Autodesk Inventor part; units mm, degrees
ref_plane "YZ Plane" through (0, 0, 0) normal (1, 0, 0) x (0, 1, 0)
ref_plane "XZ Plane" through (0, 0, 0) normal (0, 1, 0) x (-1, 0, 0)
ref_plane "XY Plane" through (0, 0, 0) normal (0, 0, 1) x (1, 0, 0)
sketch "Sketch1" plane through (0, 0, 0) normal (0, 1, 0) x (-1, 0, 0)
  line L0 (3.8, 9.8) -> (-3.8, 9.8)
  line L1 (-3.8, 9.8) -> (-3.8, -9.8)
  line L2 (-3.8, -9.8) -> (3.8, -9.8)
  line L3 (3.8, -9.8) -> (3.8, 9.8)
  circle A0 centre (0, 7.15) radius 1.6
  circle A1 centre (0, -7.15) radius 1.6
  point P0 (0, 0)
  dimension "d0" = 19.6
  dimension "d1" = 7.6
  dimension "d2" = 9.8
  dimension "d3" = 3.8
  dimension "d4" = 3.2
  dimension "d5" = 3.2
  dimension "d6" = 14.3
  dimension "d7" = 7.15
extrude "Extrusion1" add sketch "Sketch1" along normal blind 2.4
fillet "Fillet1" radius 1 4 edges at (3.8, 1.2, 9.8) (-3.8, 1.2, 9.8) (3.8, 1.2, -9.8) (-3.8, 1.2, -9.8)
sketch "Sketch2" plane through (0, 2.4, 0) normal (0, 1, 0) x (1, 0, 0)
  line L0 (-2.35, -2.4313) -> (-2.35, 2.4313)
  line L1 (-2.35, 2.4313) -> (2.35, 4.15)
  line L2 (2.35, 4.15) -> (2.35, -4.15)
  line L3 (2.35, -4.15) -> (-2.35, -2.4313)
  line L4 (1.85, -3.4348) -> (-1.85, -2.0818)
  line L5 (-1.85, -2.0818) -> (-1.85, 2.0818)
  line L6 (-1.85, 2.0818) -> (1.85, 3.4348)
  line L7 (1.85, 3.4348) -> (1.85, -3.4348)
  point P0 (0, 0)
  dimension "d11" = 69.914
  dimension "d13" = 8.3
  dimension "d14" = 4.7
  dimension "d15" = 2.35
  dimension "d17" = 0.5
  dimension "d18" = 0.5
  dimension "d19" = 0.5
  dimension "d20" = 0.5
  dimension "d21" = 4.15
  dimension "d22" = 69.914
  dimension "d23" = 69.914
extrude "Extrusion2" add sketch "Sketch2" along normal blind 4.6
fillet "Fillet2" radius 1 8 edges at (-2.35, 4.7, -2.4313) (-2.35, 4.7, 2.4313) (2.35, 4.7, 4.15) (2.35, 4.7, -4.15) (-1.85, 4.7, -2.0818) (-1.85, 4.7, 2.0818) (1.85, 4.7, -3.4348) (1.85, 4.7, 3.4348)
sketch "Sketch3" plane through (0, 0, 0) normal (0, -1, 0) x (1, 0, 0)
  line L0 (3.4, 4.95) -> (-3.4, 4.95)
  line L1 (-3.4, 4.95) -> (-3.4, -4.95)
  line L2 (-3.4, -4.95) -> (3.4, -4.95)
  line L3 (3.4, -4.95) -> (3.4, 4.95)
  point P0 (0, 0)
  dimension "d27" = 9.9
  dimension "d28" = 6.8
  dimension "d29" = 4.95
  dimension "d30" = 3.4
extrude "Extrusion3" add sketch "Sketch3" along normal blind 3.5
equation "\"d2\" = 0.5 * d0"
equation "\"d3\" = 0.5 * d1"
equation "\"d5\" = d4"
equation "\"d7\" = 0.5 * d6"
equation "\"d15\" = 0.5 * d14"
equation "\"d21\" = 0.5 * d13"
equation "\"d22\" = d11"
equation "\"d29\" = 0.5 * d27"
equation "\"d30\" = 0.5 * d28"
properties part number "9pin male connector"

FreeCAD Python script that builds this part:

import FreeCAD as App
import Part
import Sketcher

V = App.Vector
Q = App.Units.Quantity


def edges_at(feature, points):
    """Names of the edges that pass closest to the given points."""
    edges = feature.Shape.Edges
    near = lambda p: min(range(len(edges)), key=lambda i: edges[i].distToShape(Part.Vertex(*p))[0])
    return sorted({f"Edge{near(p) + 1}" for p in points})

doc = App.newDocument("Part")
params = doc.addObject("Spreadsheet::Sheet", "Params")
for row, (alias, value) in enumerate([
    ("sketch1_diameter", "3.2 mm"),
    ("sketch1_width", "7.6 mm"),
    ("sketch1_height", "19.6 mm"),
    ("pad1_length", "2.4 mm"),
    ("fillet_radius", "1 mm"),
    ("sketch2_height", "8.3 mm"),
    ("pad2_length", "4.6 mm"),
    ("fillet2_radius", "1 mm"),
    ("sketch3_width", "6.8 mm"),
    ("sketch3_height", "9.9 mm"),
    ("pad3_length", "3.5 mm"),
], start=1):
    params.set(f"A{row}", alias)
    params.set(f"B{row}", "=" + value)
    params.setAlias(f"B{row}", alias)

body = doc.addObject("PartDesign::Body", "Body")

# Sketch on XZ plane
sketch1 = doc.addObject("Sketcher::SketchObject", "Sketch")
body.addObject(sketch1)
sketch1.AttachmentSupport = (doc.XZ_Plane, [""])
sketch1.MapMode = "FlatFace"
sketch1.addGeometry([
    Part.LineSegment(V(-3.8, -9.8, 0), V(-3.8, 9.8, 0)),  # 0
    Part.LineSegment(V(-3.8, 9.8, 0), V(3.8, 9.8, 0)),  # 1
    Part.LineSegment(V(3.8, 9.8, 0), V(3.8, -9.8, 0)),  # 2
    Part.LineSegment(V(3.8, -9.8, 0), V(-3.8, -9.8, 0)),  # 3
    Part.Circle(V(0, -7.2, 0), V(0, 0, 1), 1.6),  # 4
    Part.Circle(V(0, 7.2, 0), V(0, 0, 1), 1.6),  # 5
], False)
sketch1.addConstraint([
    Sketcher.Constraint("Coincident", 0, 2, 1, 1),
    Sketcher.Constraint("Coincident", 1, 2, 2, 1),
    Sketcher.Constraint("Coincident", 2, 2, 3, 1),
    Sketcher.Constraint("Coincident", 3, 2, 0, 1),
    Sketcher.Constraint("Vertical", 0),
    Sketcher.Constraint("Horizontal", 1),
    Sketcher.Constraint("Vertical", 2),
    Sketcher.Constraint("Horizontal", 3),
    Sketcher.Constraint("Equal", 4, 5),
    Sketcher.Constraint("Symmetric", 4, 3, 5, 3, -1, 1),
    Sketcher.Constraint("Symmetric", 0, 2, 2, 2, -1, 1),
    Sketcher.Constraint("PointOnObject", 4, 3, -2),
    Sketcher.Constraint("Diameter", 4, Q("3.2 mm")),
    Sketcher.Constraint("DistanceX", 1, 1, 1, 2, Q("7.6 mm")),
    Sketcher.Constraint("DistanceY", 0, 1, 0, 2, Q("19.6 mm")),
    Sketcher.Constraint("DistanceY", 4, 3, 5, 3, Q("14.3 mm")),
])
sketch1.setExpression("Constraints[12]", "Params.sketch1_diameter")
sketch1.setExpression("Constraints[13]", "Params.sketch1_width")
sketch1.setExpression("Constraints[14]", "Params.sketch1_height")
pad1 = doc.addObject("PartDesign::Pad", "Pad")
body.addObject(pad1)
pad1.Profile = sketch1
pad1.setExpression("Length", "Params.pad1_length")
pad1.Reversed = True
doc.recompute()

fillet = doc.addObject("PartDesign::Fillet", "Fillet")
body.addObject(fillet)
fillet.Base = (pad1, edges_at(pad1, [
    (3.8, 1.2, 9.8),
    (-3.8, 1.2, 9.8),
    (3.8, 1.2, -9.8),
    (-3.8, 1.2, -9.8),
]))
fillet.setExpression("Radius", "Params.fillet_radius")

# Sketch on XZ plane
sketch2 = doc.addObject("Sketcher::SketchObject", "Sketch001")
body.addObject(sketch2)
sketch2.AttachmentSupport = (doc.XZ_Plane, [""])
sketch2.MapMode = "FlatFace"
sketch2.AttachmentOffset = App.Placement(V(0, 0, -2.4), App.Rotation())
sketch2.addGeometry([
    Part.LineSegment(V(-2.4, -2.4, 0), V(-2.4, 2.4, 0)),  # 0
    Part.LineSegment(V(-2.4, 2.4, 0), V(2.4, 4.2, 0)),  # 1
    Part.LineSegment(V(2.4, 4.2, 0), V(2.4, -4.2, 0)),  # 2
    Part.LineSegment(V(2.4, -4.2, 0), V(-2.4, -2.4, 0)),  # 3
    Part.LineSegment(V(1.9, -3.4, 0), V(1.9, 3.4, 0)),  # 4
    Part.LineSegment(V(1.9, 3.4, 0), V(-1.9, 2.1, 0)),  # 5
    Part.LineSegment(V(-1.9, 2.1, 0), V(-1.9, -2.1, 0)),  # 6
    Part.LineSegment(V(-1.9, -2.1, 0), V(1.9, -3.4, 0)),  # 7
], False)
sketch2.addConstraint([
    Sketcher.Constraint("Coincident", 0, 2, 1, 1),
    Sketcher.Constraint("Coincident", 1, 2, 2, 1),
    Sketcher.Constraint("Coincident", 2, 2, 3, 1),
    Sketcher.Constraint("Coincident", 3, 2, 0, 1),
    Sketcher.Constraint("Coincident", 4, 2, 5, 1),
    Sketcher.Constraint("Coincident", 5, 2, 6, 1),
    Sketcher.Constraint("Coincident", 6, 2, 7, 1),
    Sketcher.Constraint("Coincident", 7, 2, 4, 1),
    Sketcher.Constraint("Vertical", 0),
    Sketcher.Constraint("Vertical", 2),
    Sketcher.Constraint("Vertical", 4),
    Sketcher.Constraint("Vertical", 6),
    Sketcher.Constraint("Parallel", 1, 5),
    Sketcher.Constraint("Parallel", 3, 7),
    Sketcher.Constraint("Equal", 1, 3),
    Sketcher.Constraint("DistanceY", 2, 2, 2, 1, Q("8.3 mm")),
    Sketcher.Constraint("DistanceX", 0, 2, 1, 2, Q("4.7 mm")),
    Sketcher.Constraint("DistanceX", 4, 2, 1, 2, Q("0.5 mm")),
    Sketcher.Constraint("DistanceX", 0, 2, 5, 2, Q("0.5 mm")),
    Sketcher.Constraint("DistanceX", 0, 2, -1, 1, Q("2.35 mm")),
    Sketcher.Constraint("DistanceY", -1, 1, 1, 2, Q("4.15 mm")),
    Sketcher.Constraint("DistanceY", 0, 1, 0, 2, Q("4.8626 mm")),
    Sketcher.Constraint("DistanceY", 4, 1, 4, 2, Q("6.8696 mm")),
    Sketcher.Constraint("DistanceY", 3, 2, 4, 2, Q("5.866 mm")),
])
sketch2.setExpression("Constraints[15]", "Params.sketch2_height")
pad2 = doc.addObject("PartDesign::Pad", "Pad001")
body.addObject(pad2)
pad2.Profile = sketch2
pad2.setExpression("Length", "Params.pad2_length")
pad2.Reversed = True
doc.recompute()

fillet2 = doc.addObject("PartDesign::Fillet", "Fillet001")
body.addObject(fillet2)
fillet2.Base = (pad2, edges_at(pad2, [
    (-2.35, 4.7, -2.431),
    (-2.35, 4.7, 2.431),
    (2.35, 4.7, 4.15),
    (2.35, 4.7, -4.15),
    (-1.85, 4.7, -2.082),
    (-1.85, 4.7, 2.082),
    (1.85, 4.7, -3.435),
    (1.85, 4.7, 3.435),
]))
fillet2.setExpression("Radius", "Params.fillet2_radius")

# Sketch on XZ plane
sketch3 = doc.addObject("Sketcher::SketchObject", "Sketch002")
body.addObject(sketch3)
sketch3.AttachmentSupport = (doc.XZ_Plane, [""])
sketch3.MapMode = "FlatFace"
sketch3.addGeometry([
    Part.LineSegment(V(3, -5, 0), V(3, 5, 0)),
    Part.LineSegment(V(3, 5, 0), V(-3, 5, 0)),
    Part.LineSegment(V(-3, 5, 0), V(-3, -5, 0)),
    Part.LineSegment(V(-3, -5, 0), V(3, -5, 0)),
], False)
sketch3.addConstraint([
    Sketcher.Constraint("Coincident", 0, 2, 1, 1),
    Sketcher.Constraint("Coincident", 1, 2, 2, 1),
    Sketcher.Constraint("Coincident", 2, 2, 3, 1),
    Sketcher.Constraint("Coincident", 3, 2, 0, 1),
    Sketcher.Constraint("Vertical", 0),
    Sketcher.Constraint("Horizontal", 1),
    Sketcher.Constraint("Vertical", 2),
    Sketcher.Constraint("Horizontal", 3),
    Sketcher.Constraint("Symmetric", 0, 2, 2, 2, -1, 1),
    Sketcher.Constraint("DistanceX", 1, 2, 1, 1, Q("6.8 mm")),
    Sketcher.Constraint("DistanceY", 0, 1, 0, 2, Q("9.9 mm")),
])
sketch3.setExpression("Constraints[9]", "Params.sketch3_width")
sketch3.setExpression("Constraints[10]", "Params.sketch3_height")
pad3 = doc.addObject("PartDesign::Pad", "Pad002")
body.addObject(pad3)
pad3.Profile = sketch3
pad3.setExpression("Length", "Params.pad3_length")

doc.recompute()
